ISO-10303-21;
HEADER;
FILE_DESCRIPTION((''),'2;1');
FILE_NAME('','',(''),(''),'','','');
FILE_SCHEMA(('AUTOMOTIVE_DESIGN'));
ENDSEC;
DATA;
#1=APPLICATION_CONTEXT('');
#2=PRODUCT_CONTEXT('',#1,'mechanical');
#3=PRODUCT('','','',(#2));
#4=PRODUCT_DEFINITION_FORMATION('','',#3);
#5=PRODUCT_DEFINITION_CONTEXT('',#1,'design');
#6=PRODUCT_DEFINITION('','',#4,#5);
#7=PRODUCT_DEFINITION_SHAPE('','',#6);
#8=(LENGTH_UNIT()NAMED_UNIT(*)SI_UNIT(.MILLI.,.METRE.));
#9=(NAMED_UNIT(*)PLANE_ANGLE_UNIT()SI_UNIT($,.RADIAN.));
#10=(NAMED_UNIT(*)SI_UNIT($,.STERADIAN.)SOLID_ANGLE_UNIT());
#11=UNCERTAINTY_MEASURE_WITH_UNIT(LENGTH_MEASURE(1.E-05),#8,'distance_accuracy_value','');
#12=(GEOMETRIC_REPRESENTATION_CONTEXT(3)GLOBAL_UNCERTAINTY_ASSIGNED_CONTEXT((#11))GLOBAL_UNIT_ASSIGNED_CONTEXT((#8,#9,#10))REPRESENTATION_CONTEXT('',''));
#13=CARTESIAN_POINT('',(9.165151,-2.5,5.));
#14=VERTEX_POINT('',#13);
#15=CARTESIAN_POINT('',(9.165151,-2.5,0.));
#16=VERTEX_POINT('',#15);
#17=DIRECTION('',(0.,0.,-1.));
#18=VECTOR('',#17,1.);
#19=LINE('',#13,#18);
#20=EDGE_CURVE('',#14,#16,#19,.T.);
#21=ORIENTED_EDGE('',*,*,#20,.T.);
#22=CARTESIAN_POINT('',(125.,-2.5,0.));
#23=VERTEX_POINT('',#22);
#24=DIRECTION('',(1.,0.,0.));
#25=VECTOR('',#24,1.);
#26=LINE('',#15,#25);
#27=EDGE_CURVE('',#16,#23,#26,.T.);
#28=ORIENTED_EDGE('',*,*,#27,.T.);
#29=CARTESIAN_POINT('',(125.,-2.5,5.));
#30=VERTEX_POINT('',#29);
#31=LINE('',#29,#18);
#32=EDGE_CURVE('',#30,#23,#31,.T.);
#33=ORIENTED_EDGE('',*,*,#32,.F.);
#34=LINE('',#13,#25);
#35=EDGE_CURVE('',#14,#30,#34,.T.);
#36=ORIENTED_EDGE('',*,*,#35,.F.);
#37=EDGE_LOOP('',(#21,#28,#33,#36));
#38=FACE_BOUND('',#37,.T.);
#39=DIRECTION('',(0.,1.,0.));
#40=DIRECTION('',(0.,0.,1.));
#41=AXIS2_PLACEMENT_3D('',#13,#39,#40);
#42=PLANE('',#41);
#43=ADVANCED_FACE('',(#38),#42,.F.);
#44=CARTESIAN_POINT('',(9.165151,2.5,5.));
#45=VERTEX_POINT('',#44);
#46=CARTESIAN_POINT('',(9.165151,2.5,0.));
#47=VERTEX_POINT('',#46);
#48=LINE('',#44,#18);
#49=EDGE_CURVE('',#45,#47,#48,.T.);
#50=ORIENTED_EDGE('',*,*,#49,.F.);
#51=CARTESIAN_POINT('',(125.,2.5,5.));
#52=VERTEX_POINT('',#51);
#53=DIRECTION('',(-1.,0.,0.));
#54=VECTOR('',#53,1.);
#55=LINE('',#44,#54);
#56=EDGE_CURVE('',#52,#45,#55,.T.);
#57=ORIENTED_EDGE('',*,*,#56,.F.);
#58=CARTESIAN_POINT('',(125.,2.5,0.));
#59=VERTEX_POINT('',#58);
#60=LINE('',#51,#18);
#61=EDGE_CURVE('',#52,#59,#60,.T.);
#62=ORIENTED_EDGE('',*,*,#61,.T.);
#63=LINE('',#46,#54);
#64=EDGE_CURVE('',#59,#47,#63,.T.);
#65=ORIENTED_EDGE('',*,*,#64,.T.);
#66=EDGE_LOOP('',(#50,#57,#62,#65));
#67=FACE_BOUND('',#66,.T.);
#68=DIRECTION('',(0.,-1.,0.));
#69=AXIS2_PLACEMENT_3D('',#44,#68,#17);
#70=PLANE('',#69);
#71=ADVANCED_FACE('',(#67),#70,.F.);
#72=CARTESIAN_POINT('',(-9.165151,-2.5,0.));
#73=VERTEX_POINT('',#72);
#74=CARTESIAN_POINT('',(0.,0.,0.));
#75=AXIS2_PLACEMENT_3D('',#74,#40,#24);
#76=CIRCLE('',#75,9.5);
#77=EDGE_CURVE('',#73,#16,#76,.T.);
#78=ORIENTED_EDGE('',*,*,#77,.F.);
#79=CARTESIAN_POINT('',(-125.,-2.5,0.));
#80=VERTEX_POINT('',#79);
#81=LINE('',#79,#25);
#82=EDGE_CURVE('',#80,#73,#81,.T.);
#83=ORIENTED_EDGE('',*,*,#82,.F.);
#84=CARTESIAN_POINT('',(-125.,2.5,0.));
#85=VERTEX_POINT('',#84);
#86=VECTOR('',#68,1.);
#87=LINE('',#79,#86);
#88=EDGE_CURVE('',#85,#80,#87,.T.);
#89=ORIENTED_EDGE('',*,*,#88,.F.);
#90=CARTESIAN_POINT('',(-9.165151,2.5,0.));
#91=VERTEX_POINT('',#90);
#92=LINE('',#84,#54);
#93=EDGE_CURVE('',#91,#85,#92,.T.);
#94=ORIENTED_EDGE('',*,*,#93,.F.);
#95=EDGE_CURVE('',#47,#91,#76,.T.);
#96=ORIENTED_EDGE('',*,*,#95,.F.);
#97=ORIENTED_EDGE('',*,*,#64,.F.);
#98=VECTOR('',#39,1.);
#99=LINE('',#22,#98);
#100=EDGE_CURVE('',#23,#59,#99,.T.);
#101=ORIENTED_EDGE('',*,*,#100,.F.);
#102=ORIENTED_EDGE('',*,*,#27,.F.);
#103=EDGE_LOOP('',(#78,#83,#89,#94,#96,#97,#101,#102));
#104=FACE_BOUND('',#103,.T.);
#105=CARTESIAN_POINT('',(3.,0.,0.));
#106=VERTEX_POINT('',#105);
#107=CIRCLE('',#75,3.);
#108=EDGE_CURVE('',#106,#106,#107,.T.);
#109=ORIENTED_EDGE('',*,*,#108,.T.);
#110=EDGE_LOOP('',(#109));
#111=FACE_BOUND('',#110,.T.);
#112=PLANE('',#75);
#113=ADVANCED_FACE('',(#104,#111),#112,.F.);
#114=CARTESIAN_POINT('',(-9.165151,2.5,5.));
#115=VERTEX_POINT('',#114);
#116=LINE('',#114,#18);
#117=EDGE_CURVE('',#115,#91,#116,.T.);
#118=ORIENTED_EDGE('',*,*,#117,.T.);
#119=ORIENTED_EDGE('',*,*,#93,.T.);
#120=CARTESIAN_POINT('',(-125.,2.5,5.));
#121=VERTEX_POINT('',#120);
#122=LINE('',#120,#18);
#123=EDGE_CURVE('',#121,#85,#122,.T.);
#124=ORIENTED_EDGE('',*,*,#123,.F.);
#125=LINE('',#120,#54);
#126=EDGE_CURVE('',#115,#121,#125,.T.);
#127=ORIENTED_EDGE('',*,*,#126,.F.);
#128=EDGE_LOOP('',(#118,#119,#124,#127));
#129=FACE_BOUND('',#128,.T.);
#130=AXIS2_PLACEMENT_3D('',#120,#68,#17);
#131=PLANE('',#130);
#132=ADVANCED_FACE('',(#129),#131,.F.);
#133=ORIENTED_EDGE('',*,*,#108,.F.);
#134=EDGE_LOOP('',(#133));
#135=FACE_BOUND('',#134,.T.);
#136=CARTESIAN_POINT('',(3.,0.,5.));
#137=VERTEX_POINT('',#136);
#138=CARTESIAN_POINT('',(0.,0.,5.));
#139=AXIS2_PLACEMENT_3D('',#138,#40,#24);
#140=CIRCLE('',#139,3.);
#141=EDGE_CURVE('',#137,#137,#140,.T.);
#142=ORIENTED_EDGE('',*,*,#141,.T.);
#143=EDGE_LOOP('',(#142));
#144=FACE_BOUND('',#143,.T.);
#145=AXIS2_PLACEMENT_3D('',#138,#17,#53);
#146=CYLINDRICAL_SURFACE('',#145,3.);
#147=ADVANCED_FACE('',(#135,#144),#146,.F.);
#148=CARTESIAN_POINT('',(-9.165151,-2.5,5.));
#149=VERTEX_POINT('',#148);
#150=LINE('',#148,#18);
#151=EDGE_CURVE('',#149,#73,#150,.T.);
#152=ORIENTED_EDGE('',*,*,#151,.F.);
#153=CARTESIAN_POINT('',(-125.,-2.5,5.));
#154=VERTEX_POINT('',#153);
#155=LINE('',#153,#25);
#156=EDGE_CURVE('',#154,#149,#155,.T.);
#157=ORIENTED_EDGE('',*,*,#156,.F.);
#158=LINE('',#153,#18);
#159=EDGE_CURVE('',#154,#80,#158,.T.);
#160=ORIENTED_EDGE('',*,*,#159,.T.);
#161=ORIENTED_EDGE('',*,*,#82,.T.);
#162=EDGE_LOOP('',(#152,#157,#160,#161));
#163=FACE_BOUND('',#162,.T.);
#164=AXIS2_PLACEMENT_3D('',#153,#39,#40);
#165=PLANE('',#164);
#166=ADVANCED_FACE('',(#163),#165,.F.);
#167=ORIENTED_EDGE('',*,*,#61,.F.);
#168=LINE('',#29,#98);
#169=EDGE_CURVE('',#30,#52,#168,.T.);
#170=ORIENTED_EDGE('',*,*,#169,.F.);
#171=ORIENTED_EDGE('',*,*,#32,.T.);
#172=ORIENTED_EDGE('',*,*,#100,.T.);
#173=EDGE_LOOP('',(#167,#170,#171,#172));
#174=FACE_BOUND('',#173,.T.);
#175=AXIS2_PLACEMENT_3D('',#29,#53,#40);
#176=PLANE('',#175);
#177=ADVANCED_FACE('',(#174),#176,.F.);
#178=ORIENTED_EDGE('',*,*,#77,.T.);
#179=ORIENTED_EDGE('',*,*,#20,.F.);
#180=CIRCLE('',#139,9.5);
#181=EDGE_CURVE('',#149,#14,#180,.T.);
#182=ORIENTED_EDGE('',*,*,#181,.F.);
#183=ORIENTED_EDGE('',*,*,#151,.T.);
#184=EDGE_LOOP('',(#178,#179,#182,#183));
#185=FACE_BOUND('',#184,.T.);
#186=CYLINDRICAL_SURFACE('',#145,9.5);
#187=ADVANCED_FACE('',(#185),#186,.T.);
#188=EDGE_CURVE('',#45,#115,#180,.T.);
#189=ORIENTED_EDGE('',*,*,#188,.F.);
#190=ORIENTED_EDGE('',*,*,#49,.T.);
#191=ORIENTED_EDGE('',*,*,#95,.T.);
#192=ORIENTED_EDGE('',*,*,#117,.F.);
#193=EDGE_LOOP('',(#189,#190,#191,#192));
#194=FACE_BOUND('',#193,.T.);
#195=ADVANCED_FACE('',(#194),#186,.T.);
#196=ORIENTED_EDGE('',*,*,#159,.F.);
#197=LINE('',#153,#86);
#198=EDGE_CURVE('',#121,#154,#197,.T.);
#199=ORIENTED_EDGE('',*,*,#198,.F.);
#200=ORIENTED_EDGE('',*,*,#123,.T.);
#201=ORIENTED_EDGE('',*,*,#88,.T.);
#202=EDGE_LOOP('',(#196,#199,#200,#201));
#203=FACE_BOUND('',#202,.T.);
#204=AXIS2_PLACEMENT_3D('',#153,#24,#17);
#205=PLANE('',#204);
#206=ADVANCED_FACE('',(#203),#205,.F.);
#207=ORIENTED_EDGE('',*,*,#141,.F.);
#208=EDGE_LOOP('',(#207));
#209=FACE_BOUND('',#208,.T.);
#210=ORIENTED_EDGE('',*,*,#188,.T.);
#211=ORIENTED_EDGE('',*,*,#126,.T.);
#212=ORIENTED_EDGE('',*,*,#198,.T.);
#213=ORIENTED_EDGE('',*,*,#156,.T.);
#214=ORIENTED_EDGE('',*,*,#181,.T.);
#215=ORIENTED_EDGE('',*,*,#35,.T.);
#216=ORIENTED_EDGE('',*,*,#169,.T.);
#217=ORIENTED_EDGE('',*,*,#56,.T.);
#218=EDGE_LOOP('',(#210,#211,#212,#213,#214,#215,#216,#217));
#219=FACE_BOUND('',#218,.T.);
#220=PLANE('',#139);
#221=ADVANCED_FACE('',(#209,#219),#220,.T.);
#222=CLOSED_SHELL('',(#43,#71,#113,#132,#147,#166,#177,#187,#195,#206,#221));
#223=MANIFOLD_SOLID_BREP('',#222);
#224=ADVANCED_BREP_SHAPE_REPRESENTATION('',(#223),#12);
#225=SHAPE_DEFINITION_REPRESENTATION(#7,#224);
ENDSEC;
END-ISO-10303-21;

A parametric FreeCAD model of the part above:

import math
import FreeCAD as App
import Part
import Sketcher
Q = App.Units.Quantity

doc = App.newDocument("Part")
body = doc.addObject("PartDesign::Body", "Body")

sketch1 = body.newObject("Sketcher::SketchObject", "Sketch")
sketch1.AttachmentSupport = (doc.getObject("XY_Plane"), [""])
sketch1.MapMode = "FlatFace"
sketch1.addGeometry([
    Part.LineSegment(App.Vector(-125, -2.5, 0), App.Vector(-9.2, -2.5, 0)),
    Part.ArcOfCircle(Part.Circle(App.Vector(0, 0, 0), App.Vector(0, 0, 1), 9.5), math.radians(-165), math.radians(-15)),
    Part.LineSegment(App.Vector(9.2, -2.5, 0), App.Vector(125, -2.5, 0)),
    Part.LineSegment(App.Vector(125, -2.5, 0), App.Vector(125, 2.5, 0)),
    Part.LineSegment(App.Vector(125, 2.5, 0), App.Vector(9.2, 2.5, 0)),
    Part.ArcOfCircle(Part.Circle(App.Vector(0, 0, 0), App.Vector(0, 0, 1), 9.5), math.radians(15), math.radians(165)),
    Part.LineSegment(App.Vector(-9.2, 2.5, 0), App.Vector(-125, 2.5, 0)),
    Part.LineSegment(App.Vector(-125, 2.5, 0), App.Vector(-125, -2.5, 0)),
    Part.Circle(App.Vector(0, 0, 0), App.Vector(0, 0, 1), 3),
], False)
sketch1.addConstraint([
    Sketcher.Constraint("Coincident", 0, 2, 1, 1),
    Sketcher.Constraint("Coincident", 1, 2, 2, 1),
    Sketcher.Constraint("Coincident", 2, 2, 3, 1),
    Sketcher.Constraint("Coincident", 3, 2, 4, 1),
    Sketcher.Constraint("Coincident", 4, 2, 5, 1),
    Sketcher.Constraint("Coincident", 5, 2, 6, 1),
    Sketcher.Constraint("Coincident", 6, 2, 7, 1),
    Sketcher.Constraint("Coincident", 7, 2, 0, 1),
    Sketcher.Constraint("Horizontal", 0),
    Sketcher.Constraint("Horizontal", 2),
    Sketcher.Constraint("Vertical", 3),
    Sketcher.Constraint("Horizontal", 4),
    Sketcher.Constraint("Horizontal", 6),
    Sketcher.Constraint("Vertical", 7),
    Sketcher.Constraint("Coincident", 1, 3, -1, 1),
    Sketcher.Constraint("Coincident", 5, 3, -1, 1),
    Sketcher.Constraint("Coincident", 8, 3, -1, 1),
    Sketcher.Constraint("Equal", 1, 5),
    Sketcher.Constraint("Symmetric", 2, 2, 6, 2, -1, 1),
    Sketcher.Constraint("Horizontal", 0, 2, 1, 2),
    Sketcher.Constraint("Horizontal", 4, 2, 5, 2),
    Sketcher.Constraint("Diameter", 8, Q("6 mm")),
    Sketcher.Constraint("Radius", 1, Q("9.5 mm")),
    Sketcher.Constraint("DistanceY", 3, 1, 3, 2, Q("5 mm")),
    Sketcher.Constraint("DistanceX", -1, 1, 2, 2, Q("125 mm")),
])
pad1 = body.newObject("PartDesign::Pad", "Pad")
pad1.Profile = sketch1
pad1.Length = 5

doc.recompute()
